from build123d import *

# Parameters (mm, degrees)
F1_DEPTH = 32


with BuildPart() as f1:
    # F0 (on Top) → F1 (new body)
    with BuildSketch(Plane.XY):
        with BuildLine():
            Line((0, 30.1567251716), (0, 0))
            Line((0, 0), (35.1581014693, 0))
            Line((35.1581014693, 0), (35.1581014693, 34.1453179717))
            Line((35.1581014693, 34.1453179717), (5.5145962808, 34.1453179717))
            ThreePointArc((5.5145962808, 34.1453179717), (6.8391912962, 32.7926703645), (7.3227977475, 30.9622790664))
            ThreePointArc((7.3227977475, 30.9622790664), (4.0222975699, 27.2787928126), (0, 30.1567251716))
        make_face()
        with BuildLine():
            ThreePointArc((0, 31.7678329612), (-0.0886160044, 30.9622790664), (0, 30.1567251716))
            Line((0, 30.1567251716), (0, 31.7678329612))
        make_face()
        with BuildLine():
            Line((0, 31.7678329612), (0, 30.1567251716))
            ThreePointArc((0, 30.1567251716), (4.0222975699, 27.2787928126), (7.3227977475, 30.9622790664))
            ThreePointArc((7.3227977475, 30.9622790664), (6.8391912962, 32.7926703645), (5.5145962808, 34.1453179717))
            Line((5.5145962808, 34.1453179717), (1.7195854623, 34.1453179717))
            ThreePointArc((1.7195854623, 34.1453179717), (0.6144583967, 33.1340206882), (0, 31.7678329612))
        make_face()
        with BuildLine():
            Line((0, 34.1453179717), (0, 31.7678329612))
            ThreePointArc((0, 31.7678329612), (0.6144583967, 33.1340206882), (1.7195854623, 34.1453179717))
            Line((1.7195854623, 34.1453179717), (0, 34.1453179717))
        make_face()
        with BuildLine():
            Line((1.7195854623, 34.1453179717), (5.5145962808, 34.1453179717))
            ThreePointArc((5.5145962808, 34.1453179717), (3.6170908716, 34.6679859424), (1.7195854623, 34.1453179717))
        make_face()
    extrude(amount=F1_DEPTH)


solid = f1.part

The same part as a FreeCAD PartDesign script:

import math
import FreeCAD as App
import Part
import Sketcher
from FreeCAD import Vector
Q = App.Units.Quantity

doc = App.newDocument("Part")
params = doc.addObject("Spreadsheet::Sheet", "Params")
for row, (alias, value) in enumerate([
    ("pad1_length", "32 mm"),
], start=1):
    params.set(f"A{row}", alias)
    params.set(f"B{row}", "=" + value)
    params.setAlias(f"B{row}", alias)

body = doc.addObject("PartDesign::Body", "Body")

# Sketch on XY plane
sketch1 = body.newObject("Sketcher::SketchObject", "Sketch")
sketch1.AttachmentSupport = (doc.getObject("XY_Plane"), [""])
sketch1.MapMode = "FlatFace"
sketch1.addGeometry([
    Part.LineSegment(Vector(0, 30.2, 0), Vector(0, 0, 0)),  # 0
    Part.LineSegment(Vector(0, 0, 0), Vector(35.2, 0, 0)),  # 1
    Part.LineSegment(Vector(35.2, 0, 0), Vector(35.2, 34.1, 0)),  # 2
    Part.LineSegment(Vector(35.2, 34.1, 0), Vector(5.5, 34.1, 0)),  # 3
    Part.ArcOfCircle(Part.Circle(Vector(3.6, 31, 0), Vector(0, 0, 1), 3.7), math.radians(59), math.radians(121)),  # 4
    Part.LineSegment(Vector(1.7, 34.1, 0), Vector(0, 34.1, 0)),  # 5
    Part.LineSegment(Vector(0, 34.1, 0), Vector(0, 31.8, 0)),  # 6
    Part.ArcOfCircle(Part.Circle(Vector(3.6, 31, 0), Vector(0, 0, 1), 3.7), math.radians(167), math.radians(193)),  # 7
], False)
sketch1.addConstraint([
    Sketcher.Constraint("Coincident", 0, 2, 1, 1),
    Sketcher.Constraint("Coincident", 1, 2, 2, 1),
    Sketcher.Constraint("Coincident", 2, 2, 3, 1),
    Sketcher.Constraint("Coincident", 3, 2, 4, 1),
    Sketcher.Constraint("Coincident", 4, 2, 5, 1),
    Sketcher.Constraint("Coincident", 5, 2, 6, 1),
    Sketcher.Constraint("Coincident", 6, 2, 7, 1),
    Sketcher.Constraint("Coincident", 7, 2, 0, 1),
    Sketcher.Constraint("Vertical", 0),
    Sketcher.Constraint("Horizontal", 1),
    Sketcher.Constraint("Vertical", 2),
    Sketcher.Constraint("Horizontal", 3),
    Sketcher.Constraint("Horizontal", 5),
    Sketcher.Constraint("Vertical", 6),
    Sketcher.Constraint("Coincident", 0, 2, -1, 1),
    Sketcher.Constraint("Coincident", 7, 3, 4, 3),
    Sketcher.Constraint("Equal", 4, 7),
    Sketcher.Constraint("PointOnObject", 5, 2, -2),
    Sketcher.Constraint("Horizontal", 3, 2, 4, 2),
    Sketcher.Constraint("DistanceX", 1, 1, 1, 2, Q("35.158101 mm")),
    Sketcher.Constraint("Radius", 4, Q("3.705707 mm")),
    Sketcher.Constraint("DistanceX", 3, 2, 3, 1, Q("29.643505 mm")),
    Sketcher.Constraint("DistanceX", 5, 2, 5, 1, Q("1.719585 mm")),
    Sketcher.Constraint("DistanceY", 0, 2, 0, 1, Q("30.156725 mm")),
])
pad1 = body.newObject("PartDesign::Pad", "Pad")
pad1.Profile = sketch1
pad1.setExpression("Length", "Params.pad1_length")

doc.recompute()
